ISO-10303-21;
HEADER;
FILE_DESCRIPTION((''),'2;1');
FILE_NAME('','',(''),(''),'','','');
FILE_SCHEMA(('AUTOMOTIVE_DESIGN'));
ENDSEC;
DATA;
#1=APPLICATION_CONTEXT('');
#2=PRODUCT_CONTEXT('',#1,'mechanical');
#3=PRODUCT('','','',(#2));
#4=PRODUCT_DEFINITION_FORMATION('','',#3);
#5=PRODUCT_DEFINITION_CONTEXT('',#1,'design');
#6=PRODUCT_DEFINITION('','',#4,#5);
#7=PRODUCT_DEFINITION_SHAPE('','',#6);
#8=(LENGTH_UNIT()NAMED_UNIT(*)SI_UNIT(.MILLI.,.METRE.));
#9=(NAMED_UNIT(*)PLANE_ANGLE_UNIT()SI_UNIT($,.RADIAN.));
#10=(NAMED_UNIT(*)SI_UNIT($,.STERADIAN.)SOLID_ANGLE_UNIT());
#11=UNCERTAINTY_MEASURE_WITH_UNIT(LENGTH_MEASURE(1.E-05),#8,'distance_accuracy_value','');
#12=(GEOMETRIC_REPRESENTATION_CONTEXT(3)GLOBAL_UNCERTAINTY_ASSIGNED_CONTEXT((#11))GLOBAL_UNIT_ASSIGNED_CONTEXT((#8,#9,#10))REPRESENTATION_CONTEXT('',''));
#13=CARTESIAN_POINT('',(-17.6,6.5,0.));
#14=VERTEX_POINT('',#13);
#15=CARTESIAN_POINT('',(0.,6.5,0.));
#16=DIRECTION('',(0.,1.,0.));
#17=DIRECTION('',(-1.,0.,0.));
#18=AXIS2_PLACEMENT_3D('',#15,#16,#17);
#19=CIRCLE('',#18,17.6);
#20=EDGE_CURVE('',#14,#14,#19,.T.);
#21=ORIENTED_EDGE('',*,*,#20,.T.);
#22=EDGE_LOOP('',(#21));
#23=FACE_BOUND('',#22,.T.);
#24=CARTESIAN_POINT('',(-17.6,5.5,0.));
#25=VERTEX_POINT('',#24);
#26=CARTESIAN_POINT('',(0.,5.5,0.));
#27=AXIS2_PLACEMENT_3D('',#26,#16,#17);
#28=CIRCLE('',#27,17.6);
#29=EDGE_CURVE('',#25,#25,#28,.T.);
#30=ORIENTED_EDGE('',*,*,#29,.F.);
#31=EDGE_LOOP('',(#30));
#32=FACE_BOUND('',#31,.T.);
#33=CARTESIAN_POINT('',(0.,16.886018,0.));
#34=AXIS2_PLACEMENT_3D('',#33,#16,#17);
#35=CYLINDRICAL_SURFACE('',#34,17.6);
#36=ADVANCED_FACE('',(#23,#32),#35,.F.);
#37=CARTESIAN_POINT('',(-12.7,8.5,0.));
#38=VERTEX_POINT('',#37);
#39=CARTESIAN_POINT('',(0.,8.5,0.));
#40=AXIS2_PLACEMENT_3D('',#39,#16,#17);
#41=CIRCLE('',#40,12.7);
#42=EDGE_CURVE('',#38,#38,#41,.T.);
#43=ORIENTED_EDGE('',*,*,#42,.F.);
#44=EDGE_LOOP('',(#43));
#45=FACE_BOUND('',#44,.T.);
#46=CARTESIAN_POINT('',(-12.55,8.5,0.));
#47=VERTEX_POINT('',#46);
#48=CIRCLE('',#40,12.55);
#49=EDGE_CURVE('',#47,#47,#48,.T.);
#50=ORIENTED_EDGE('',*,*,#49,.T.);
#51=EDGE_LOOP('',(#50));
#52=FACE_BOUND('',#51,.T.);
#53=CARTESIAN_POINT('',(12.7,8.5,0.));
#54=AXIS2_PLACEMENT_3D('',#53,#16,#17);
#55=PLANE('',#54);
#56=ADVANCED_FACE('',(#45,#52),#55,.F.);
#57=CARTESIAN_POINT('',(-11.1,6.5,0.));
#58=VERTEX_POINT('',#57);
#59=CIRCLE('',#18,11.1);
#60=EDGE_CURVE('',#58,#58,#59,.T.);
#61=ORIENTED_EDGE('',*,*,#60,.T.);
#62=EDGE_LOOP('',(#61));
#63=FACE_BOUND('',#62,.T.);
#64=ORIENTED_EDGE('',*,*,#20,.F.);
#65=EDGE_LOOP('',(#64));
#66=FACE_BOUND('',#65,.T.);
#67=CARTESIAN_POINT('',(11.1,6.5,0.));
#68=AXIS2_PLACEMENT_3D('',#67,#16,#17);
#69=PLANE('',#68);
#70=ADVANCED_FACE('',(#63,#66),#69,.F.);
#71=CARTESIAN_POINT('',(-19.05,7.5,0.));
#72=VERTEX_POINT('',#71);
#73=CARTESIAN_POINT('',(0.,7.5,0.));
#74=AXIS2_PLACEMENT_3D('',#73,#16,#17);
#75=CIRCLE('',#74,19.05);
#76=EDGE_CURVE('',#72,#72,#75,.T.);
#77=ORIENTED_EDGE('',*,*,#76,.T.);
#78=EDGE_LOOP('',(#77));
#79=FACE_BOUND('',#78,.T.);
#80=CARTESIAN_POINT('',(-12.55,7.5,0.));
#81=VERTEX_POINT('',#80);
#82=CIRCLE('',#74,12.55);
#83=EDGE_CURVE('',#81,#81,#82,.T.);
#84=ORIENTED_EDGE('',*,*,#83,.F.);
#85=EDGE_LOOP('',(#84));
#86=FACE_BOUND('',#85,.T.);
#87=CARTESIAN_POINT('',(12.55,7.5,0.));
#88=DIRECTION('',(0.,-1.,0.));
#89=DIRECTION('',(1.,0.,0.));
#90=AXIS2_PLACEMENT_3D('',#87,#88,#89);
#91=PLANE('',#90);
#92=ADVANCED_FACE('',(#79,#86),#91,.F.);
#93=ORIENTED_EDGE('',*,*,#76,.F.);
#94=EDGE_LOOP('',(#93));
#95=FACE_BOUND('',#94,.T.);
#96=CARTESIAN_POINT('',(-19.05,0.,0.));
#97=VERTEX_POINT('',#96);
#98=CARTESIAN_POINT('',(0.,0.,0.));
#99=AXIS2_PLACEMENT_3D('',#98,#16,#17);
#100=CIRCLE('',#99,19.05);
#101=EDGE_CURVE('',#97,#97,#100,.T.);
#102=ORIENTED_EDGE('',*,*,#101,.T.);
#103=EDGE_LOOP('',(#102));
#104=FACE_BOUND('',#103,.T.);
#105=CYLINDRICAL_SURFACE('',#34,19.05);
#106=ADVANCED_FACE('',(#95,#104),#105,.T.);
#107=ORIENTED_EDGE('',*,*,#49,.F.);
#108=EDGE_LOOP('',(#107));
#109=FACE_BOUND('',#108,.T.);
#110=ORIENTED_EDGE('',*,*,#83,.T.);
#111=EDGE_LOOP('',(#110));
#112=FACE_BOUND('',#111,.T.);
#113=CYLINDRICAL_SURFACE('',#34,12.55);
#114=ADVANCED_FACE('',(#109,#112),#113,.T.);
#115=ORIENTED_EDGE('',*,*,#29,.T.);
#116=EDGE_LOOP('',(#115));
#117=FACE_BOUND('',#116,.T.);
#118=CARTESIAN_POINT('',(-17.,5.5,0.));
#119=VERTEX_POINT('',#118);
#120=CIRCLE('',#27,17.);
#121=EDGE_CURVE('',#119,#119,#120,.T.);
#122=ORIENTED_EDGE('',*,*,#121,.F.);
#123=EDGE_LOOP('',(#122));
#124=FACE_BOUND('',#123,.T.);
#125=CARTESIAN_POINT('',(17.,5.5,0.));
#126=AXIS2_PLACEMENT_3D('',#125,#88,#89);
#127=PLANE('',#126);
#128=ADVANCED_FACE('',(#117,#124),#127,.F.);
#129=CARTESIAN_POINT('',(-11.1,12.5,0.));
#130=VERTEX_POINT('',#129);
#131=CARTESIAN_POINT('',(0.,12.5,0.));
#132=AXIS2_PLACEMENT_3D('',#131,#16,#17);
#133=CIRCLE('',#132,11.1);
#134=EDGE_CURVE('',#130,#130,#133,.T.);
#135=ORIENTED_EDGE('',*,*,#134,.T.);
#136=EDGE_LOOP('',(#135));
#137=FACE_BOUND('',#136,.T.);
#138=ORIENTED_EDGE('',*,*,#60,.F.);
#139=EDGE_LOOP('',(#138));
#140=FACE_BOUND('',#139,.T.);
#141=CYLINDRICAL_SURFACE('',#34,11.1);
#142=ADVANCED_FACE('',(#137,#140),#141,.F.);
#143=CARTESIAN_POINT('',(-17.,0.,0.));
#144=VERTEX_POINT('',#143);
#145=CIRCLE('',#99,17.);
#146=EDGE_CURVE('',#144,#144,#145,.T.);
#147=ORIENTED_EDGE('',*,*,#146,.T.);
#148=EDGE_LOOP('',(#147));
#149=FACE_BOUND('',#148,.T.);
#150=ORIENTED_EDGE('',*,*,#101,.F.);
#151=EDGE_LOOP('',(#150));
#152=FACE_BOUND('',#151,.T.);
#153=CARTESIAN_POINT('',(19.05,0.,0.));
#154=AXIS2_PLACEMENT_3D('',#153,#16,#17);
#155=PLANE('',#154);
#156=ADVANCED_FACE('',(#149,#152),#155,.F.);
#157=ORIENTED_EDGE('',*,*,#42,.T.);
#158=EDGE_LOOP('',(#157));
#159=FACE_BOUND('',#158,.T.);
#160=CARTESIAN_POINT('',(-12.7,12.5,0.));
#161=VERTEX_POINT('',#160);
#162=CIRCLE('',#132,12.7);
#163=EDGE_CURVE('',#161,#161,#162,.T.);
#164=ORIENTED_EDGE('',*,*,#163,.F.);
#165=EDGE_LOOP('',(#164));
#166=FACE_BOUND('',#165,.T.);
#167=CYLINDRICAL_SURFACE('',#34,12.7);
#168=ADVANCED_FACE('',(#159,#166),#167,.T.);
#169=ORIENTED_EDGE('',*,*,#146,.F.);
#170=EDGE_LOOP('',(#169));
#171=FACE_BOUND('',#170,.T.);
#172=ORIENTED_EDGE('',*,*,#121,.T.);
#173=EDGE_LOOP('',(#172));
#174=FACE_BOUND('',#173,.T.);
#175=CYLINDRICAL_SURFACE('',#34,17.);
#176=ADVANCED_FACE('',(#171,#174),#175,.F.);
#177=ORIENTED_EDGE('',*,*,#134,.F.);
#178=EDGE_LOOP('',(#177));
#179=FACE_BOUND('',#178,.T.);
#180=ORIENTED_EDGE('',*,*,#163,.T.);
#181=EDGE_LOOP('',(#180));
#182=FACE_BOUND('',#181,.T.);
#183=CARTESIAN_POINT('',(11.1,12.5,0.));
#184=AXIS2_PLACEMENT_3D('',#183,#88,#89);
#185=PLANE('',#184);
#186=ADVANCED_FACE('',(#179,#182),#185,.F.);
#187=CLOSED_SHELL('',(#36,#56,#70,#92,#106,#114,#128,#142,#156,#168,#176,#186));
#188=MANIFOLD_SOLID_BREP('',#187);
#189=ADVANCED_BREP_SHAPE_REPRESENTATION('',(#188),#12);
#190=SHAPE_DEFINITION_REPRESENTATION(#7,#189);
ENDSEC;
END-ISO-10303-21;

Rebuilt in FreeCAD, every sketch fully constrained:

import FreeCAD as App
import Part
import Sketcher
from FreeCAD import Vector


def add_polygon(sketch, points):
    """Adds a closed chain of lines whose ends are joined by coincident constraints."""
    first, n = sketch.GeometryCount, len(points)
    for a, b in zip(points, points[1:] + points[:1]):
        sketch.addGeometry(Part.LineSegment(App.Vector(*a, 0), App.Vector(*b, 0)), False)
    for i in range(n):
        sketch.addConstraint(Sketcher.Constraint("Coincident", first + i, 2, first + (i + 1) % n, 1))

doc = App.newDocument("Part")
params = doc.addObject("Spreadsheet::Sheet", "Params")
for row, (alias, value) in enumerate([
    ("sketch1_height", "1 mm"),
    ("sketch1_height2", "4 mm"),
    ("sketch1_height3", "6 mm"),
    ("sketch1_width", "6.5 mm"),
    ("sketch1_width2", "1.6 mm"),
    ("revolution_angle", "360 deg"),
], start=1):
    params.set(f"A{row}", alias)
    params.set(f"B{row}", "=" + value)
    params.setAlias(f"B{row}", alias)

body = doc.addObject("PartDesign::Body", "Body")

# Sketch on XY plane
sketch1 = body.newObject("Sketcher::SketchObject", "Sketch")
sketch1.AttachmentSupport = (doc.getObject("XY_Plane"), [""])
sketch1.MapMode = "FlatFace"
add_polygon(sketch1, [(17, 5.5), (17, 0), (19.05, 0), (19.05, 7.5), (12.55, 7.5), (12.55, 8.5), (12.7, 8.5), (12.7, 12.5), (11.1, 12.5), (11.1, 6.5), (17.6, 6.5), (17.6, 5.5)])  # lines 0-11
sketch1.addConstraint([
    Sketcher.Constraint("Vertical", 0),
    Sketcher.Constraint("Horizontal", 1),
    Sketcher.Constraint("Vertical", 2),
    Sketcher.Constraint("Horizontal", 3),
    Sketcher.Constraint("Vertical", 4),
    Sketcher.Constraint("Horizontal", 5),
    Sketcher.Constraint("Vertical", 6),
    Sketcher.Constraint("Horizontal", 7),
    Sketcher.Constraint("Vertical", 8),
    Sketcher.Constraint("Horizontal", 9),
    Sketcher.Constraint("Vertical", 10),
    Sketcher.Constraint("Horizontal", 11),
    Sketcher.Constraint("PointOnObject", 0, 2, -1),
    Sketcher.Constraint("Equal", 3, 9),
    Sketcher.Constraint("Equal", 4, 10),
    Sketcher.Constraint("DistanceY", 4, 1, 4, 2, 1.0),
    Sketcher.Constraint("DistanceY", 6, 1, 6, 2, 4.0),
    Sketcher.Constraint("DistanceY", 8, 2, 8, 1, 6.0),
    Sketcher.Constraint("DistanceX", 3, 2, 3, 1, 6.5),
    Sketcher.Constraint("DistanceX", 7, 2, 7, 1, 1.6),
    Sketcher.Constraint("DistanceX", 11, 2, 11, 1, 0.6),
    Sketcher.Constraint("DistanceY", 0, 2, 0, 1, 5.5),
    Sketcher.Constraint("DistanceX", -1, 1, 0, 2, 17.0),
    Sketcher.Constraint("DistanceX", 1, 1, 1, 2, 2.05),
])
sketch1.setExpression("Constraints[27]", "Params.sketch1_height")
sketch1.setExpression("Constraints[28]", "Params.sketch1_height2")
sketch1.setExpression("Constraints[29]", "Params.sketch1_height3")
sketch1.setExpression("Constraints[30]", "Params.sketch1_width")
sketch1.setExpression("Constraints[31]", "Params.sketch1_width2")
revolution = body.newObject("PartDesign::Revolution", "Revolution")
revolution.Profile = sketch1
revolution.ReferenceAxis = (sketch1, ["V_Axis"])
revolution.setExpression("Angle", "Params.revolution_angle")

doc.recompute()
